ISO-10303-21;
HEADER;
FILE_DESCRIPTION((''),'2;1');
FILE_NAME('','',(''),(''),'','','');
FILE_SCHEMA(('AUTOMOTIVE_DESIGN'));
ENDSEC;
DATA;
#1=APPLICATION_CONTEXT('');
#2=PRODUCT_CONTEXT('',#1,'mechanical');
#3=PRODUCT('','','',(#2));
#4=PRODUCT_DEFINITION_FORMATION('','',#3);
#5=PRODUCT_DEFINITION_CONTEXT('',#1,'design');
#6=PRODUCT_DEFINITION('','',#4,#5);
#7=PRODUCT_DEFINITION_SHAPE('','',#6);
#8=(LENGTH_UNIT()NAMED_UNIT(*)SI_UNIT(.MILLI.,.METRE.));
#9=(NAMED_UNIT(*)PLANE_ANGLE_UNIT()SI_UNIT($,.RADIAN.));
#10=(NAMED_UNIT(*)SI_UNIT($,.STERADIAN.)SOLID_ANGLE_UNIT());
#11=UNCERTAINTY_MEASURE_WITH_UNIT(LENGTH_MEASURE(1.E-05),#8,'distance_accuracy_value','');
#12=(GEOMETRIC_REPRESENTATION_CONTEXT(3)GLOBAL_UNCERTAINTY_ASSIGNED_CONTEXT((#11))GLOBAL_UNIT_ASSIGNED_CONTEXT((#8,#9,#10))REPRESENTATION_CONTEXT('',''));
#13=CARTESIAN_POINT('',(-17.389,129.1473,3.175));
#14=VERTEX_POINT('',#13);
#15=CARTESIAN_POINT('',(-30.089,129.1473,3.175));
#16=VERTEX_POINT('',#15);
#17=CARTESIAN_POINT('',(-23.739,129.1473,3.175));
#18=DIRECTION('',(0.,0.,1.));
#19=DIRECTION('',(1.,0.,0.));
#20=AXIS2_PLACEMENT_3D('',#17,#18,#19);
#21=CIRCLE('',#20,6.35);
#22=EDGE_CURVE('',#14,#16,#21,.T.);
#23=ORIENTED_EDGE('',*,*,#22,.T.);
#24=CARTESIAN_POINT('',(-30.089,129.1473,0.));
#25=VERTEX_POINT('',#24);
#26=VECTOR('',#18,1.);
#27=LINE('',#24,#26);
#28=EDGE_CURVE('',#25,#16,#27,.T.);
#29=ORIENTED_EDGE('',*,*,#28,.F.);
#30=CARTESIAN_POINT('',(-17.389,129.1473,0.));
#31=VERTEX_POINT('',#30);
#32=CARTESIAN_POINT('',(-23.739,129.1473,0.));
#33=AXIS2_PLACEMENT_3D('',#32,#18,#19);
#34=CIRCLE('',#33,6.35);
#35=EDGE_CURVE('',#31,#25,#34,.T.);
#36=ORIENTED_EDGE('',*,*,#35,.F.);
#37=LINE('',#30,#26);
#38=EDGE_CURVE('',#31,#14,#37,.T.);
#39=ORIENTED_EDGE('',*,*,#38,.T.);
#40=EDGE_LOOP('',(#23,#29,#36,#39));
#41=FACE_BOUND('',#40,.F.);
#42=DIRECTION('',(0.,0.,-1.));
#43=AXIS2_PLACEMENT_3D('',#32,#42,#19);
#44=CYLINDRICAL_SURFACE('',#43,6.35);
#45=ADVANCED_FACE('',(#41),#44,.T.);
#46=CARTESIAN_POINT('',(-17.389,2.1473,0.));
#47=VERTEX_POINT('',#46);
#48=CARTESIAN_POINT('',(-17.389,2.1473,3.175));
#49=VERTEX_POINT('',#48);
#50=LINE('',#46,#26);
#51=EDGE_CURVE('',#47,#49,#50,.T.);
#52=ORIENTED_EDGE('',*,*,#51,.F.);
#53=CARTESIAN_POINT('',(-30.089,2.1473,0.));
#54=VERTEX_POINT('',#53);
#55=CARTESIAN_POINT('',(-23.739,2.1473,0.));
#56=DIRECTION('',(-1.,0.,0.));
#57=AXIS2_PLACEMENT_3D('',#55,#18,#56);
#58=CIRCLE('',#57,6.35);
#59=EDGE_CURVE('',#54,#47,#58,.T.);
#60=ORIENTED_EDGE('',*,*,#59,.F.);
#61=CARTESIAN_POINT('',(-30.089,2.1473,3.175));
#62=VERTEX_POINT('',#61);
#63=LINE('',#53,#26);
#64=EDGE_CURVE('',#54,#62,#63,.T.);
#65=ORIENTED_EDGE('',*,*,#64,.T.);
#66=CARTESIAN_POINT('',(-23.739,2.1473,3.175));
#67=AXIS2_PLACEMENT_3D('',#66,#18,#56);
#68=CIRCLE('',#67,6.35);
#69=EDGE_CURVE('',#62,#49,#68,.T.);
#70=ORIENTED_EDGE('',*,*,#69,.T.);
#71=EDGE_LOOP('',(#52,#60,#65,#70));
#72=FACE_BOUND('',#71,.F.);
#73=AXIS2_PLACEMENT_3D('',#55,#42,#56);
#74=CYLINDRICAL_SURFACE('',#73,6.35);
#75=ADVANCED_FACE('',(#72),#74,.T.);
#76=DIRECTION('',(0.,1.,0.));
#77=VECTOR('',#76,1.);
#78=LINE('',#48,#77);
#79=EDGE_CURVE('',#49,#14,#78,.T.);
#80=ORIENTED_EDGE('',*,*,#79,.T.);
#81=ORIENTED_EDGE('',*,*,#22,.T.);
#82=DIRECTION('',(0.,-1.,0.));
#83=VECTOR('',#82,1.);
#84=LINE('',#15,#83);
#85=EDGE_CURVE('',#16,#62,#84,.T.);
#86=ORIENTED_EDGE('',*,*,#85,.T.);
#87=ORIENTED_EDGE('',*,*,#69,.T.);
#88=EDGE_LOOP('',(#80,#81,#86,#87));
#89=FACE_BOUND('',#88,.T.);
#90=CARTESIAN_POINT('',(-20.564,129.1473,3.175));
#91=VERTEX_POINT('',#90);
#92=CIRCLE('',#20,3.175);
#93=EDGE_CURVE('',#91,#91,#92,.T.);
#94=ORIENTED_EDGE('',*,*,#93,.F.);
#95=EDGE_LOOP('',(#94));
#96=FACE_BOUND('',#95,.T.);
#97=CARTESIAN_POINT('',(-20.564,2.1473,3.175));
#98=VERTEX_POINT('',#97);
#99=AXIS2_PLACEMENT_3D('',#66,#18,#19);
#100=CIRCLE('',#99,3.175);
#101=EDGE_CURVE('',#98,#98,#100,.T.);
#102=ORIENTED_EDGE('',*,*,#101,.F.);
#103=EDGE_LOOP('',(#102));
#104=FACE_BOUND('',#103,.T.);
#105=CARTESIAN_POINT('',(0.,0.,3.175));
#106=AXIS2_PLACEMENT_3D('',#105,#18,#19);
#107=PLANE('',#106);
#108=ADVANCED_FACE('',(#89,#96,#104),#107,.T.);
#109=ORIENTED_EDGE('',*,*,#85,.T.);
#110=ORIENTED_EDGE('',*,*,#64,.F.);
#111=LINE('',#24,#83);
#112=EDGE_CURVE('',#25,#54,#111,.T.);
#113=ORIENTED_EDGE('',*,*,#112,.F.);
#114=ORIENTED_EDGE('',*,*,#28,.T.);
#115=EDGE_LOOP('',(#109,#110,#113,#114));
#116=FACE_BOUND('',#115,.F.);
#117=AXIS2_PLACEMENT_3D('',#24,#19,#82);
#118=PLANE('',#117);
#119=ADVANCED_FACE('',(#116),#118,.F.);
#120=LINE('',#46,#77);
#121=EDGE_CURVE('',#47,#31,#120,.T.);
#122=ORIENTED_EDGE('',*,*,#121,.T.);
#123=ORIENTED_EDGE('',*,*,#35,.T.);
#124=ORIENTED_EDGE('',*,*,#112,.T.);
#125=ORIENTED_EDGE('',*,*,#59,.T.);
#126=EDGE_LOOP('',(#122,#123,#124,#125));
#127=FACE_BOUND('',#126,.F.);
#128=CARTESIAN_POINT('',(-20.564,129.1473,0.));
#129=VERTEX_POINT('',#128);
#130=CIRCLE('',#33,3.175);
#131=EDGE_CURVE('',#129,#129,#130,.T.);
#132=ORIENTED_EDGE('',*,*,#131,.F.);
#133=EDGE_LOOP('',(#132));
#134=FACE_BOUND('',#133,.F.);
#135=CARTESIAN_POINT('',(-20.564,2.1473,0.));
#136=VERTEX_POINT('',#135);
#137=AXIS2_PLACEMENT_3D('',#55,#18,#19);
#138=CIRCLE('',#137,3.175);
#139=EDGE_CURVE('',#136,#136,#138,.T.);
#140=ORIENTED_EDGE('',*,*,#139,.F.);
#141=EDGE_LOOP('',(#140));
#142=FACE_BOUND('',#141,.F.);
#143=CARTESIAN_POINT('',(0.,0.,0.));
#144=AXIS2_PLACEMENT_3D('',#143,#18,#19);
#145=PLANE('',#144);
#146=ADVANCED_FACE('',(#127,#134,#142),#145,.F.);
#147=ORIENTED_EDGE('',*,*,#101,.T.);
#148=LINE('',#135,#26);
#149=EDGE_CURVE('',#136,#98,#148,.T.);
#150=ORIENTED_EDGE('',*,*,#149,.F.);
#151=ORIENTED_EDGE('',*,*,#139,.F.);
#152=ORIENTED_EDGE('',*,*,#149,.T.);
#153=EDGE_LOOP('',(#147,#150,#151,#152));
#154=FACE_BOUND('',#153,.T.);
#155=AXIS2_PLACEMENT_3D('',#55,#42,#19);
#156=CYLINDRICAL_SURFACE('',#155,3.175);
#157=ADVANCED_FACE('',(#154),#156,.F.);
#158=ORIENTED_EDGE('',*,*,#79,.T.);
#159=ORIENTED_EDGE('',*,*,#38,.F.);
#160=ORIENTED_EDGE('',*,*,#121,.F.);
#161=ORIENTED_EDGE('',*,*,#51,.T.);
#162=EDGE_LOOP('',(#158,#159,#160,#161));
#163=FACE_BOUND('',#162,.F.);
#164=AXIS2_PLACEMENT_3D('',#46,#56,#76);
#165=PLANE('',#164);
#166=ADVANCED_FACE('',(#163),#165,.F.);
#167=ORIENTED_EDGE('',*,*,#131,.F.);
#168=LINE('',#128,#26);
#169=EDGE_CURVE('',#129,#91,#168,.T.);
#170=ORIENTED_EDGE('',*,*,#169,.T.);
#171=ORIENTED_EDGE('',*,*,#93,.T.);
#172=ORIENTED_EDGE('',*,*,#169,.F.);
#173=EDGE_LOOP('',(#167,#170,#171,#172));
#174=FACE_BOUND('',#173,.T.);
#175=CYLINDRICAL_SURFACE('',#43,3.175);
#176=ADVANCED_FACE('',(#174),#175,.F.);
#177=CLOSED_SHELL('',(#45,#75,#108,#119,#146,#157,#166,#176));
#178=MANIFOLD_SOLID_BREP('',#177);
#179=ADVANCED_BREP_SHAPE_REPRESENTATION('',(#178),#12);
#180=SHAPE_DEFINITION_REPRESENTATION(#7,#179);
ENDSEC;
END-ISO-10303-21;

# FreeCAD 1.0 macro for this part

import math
import FreeCAD as App
import Part
import Sketcher
Q = App.Units.Quantity

doc = App.newDocument("Part")
params = doc.addObject("Spreadsheet::Sheet", "Params")
for row, (alias, value) in enumerate([
    ("sketch1_diameter", "0.25 in"),
    ("sketch1_height", "5 in"),
    ("sketch1_radius", "0.25 in"),
    ("pad1_length", "0.125 in"),
], start=1):
    params.set(f"A{row}", alias)
    params.set(f"B{row}", "=" + value)
    params.setAlias(f"B{row}", alias)

body = doc.addObject("PartDesign::Body", "Body")

sketch1 = doc.addObject("Sketcher::SketchObject", "Sketch")
body.addObject(sketch1)
sketch1.AttachmentSupport = (doc.XY_Plane, [""])
sketch1.MapMode = "FlatFace"
sketch1.addGeometry([
    Part.ArcOfCircle(Part.Circle(App.Vector(-23.739, 2.1473, 0), App.Vector(0, 0, 1), 6.35), math.radians(180), math.radians(360)),
    Part.LineSegment(App.Vector(-17.389, 2.1473, 0), App.Vector(-17.389, 129.1473, 0)),
    Part.ArcOfCircle(Part.Circle(App.Vector(-23.739, 129.1473, 0), App.Vector(0, 0, 1), 6.35), math.radians(0), math.radians(180)),
    Part.LineSegment(App.Vector(-30.089, 129.1473, 0), App.Vector(-30.089, 2.1473, 0)),
    Part.Circle(App.Vector(-23.739, 2.1473, 0), App.Vector(0, 0, 1), 3.175),
    Part.Circle(App.Vector(-23.739, 129.1473, 0), App.Vector(0, 0, 1), 3.175),
], False)
sketch1.addConstraint([
    Sketcher.Constraint("Tangent", 0, 2, 1, 1),
    Sketcher.Constraint("Tangent", 1, 2, 2, 1),
    Sketcher.Constraint("Tangent", 2, 2, 3, 1),
    Sketcher.Constraint("Tangent", 3, 2, 0, 1),
    Sketcher.Constraint("Vertical", 1),
    Sketcher.Constraint("Vertical", 3),
    Sketcher.Constraint("Coincident", 4, 3, 0, 3),
    Sketcher.Constraint("Coincident", 5, 3, 2, 3),
    Sketcher.Constraint("Equal", 4, 5),
    Sketcher.Constraint("Diameter", 4, Q("0.25 in")),
    Sketcher.Constraint("DistanceY", 1, 1, 1, 2, Q("5 in")),
    Sketcher.Constraint("Radius", 0, Q("0.25 in")),
    Sketcher.Constraint("DistanceX", 0, 3, -1, 1, Q("0.9346 in")),
    Sketcher.Constraint("DistanceY", -1, 1, 0, 3, 2.1473),
])
sketch1.setExpression("Constraints[9]", "Params.sketch1_diameter")
sketch1.setExpression("Constraints[10]", "Params.sketch1_height")
sketch1.setExpression("Constraints[11]", "Params.sketch1_radius")
pad1 = doc.addObject("PartDesign::Pad", "Pad")
body.addObject(pad1)
pad1.Profile = sketch1
pad1.setExpression("Length", "Params.pad1_length")

doc.recompute()
